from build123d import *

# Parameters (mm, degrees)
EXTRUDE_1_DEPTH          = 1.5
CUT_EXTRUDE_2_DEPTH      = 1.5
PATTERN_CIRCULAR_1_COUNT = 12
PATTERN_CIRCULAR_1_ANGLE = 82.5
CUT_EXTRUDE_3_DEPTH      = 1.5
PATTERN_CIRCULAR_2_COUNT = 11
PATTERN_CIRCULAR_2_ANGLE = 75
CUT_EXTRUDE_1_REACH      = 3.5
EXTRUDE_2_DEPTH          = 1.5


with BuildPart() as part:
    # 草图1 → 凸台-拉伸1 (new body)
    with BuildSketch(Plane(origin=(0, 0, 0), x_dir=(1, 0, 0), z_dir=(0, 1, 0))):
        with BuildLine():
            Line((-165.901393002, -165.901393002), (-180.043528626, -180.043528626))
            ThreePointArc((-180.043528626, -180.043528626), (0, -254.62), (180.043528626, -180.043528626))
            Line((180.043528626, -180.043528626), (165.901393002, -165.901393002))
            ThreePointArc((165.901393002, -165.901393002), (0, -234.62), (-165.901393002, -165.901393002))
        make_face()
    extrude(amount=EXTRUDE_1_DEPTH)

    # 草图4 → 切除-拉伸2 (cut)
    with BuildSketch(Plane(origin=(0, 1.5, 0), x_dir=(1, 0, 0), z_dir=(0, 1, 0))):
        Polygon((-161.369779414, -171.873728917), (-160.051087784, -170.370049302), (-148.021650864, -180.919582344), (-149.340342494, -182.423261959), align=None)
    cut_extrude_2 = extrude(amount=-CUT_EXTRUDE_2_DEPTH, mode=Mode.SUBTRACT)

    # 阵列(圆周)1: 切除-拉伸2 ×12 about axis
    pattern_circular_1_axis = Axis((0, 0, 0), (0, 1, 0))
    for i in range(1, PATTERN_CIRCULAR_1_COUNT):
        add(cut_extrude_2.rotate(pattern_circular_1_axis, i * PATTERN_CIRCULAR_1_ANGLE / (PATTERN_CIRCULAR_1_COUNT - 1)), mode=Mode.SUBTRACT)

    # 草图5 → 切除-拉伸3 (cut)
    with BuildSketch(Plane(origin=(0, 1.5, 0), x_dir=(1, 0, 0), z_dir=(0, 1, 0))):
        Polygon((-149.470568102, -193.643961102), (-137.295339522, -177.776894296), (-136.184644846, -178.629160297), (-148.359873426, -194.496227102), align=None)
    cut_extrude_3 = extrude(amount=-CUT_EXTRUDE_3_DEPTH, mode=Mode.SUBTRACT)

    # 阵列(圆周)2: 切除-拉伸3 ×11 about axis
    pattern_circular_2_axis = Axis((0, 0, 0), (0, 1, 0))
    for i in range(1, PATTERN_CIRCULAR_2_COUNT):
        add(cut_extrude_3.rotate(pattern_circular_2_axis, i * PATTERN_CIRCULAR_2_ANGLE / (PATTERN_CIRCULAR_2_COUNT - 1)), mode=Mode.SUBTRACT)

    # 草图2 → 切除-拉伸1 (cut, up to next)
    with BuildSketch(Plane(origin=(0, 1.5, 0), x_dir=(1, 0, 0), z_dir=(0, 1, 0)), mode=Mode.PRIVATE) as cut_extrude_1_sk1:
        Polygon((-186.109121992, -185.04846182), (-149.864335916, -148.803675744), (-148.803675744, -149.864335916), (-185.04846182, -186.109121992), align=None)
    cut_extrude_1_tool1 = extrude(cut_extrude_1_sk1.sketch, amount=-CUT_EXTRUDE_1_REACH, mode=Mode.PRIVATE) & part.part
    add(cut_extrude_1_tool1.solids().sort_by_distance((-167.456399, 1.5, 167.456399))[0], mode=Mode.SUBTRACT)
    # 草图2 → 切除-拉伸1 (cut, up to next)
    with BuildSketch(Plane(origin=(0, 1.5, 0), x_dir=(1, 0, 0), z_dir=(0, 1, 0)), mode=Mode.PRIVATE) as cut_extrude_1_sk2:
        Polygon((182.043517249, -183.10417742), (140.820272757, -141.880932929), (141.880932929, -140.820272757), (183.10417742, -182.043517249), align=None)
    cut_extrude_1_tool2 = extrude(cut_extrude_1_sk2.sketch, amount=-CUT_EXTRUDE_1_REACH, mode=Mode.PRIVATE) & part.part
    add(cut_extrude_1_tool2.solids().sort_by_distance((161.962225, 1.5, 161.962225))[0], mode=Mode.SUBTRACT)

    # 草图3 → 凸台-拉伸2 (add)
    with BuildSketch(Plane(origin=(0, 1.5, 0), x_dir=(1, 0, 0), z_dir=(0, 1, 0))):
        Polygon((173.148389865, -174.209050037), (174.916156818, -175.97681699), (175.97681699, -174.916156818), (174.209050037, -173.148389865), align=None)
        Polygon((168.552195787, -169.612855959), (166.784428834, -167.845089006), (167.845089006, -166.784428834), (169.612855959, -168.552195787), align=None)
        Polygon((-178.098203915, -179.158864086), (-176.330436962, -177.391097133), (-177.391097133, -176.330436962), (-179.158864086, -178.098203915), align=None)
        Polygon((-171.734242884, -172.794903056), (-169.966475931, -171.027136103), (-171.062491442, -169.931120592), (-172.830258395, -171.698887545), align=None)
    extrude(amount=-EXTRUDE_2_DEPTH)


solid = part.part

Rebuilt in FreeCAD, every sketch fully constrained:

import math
import FreeCAD as App
import Part
import Sketcher

V = App.Vector
Q = App.Units.Quantity

doc = App.newDocument("Part")
body = doc.addObject("PartDesign::Body", "Body")

sketch1 = body.newObject("Sketcher::SketchObject", "Sketch")
sketch1.AttachmentSupport = (doc.getObject("XZ_Plane"), [""])
sketch1.MapMode = "FlatFace"
sketch1.addGeometry([
    Part.LineSegment(V(-166, 166, 0), V(-180, 180, 0)),
    Part.ArcOfCircle(Part.Circle(V(0, 0, 0), V(0, 0, 1), 255), math.radians(45), math.radians(135)),
    Part.LineSegment(V(180, 180, 0), V(166, 166, 0)),
    Part.ArcOfCircle(Part.Circle(V(0, 0, 0), V(0, 0, 1), 235), math.radians(45), math.radians(135)),
], False)
sketch1.addConstraint([
    Sketcher.Constraint("Coincident", 0, 2, 1, 2),
    Sketcher.Constraint("Coincident", 1, 1, 2, 1),
    Sketcher.Constraint("Coincident", 2, 2, 3, 1),
    Sketcher.Constraint("Coincident", 3, 2, 0, 1),
    Sketcher.Constraint("Coincident", 1, 3, -1, 1),
    Sketcher.Constraint("Coincident", 3, 3, -1, 1),
    Sketcher.Constraint("Perpendicular", 0, 2),
    Sketcher.Constraint("Horizontal", 0, 2, 1, 1),
    Sketcher.Constraint("Horizontal", 2, 2, 3, 2),
    Sketcher.Constraint("Radius", 1, Q("254.62 mm")),
    Sketcher.Constraint("Radius", 3, Q("234.62 mm")),
    Sketcher.Constraint("DistanceX", 0, 2, -1, 1, Q("180.043529 mm")),
])
pad1 = body.newObject("PartDesign::Pad", "Pad")
pad1.Profile = sketch1
pad1.Length = 1.5
pad1.Reversed = True

sketch2 = body.newObject("Sketcher::SketchObject", "Sketch001")
sketch2.AttachmentSupport = (doc.getObject("XZ_Plane"), [""])
sketch2.MapMode = "FlatFace"
sketch2.AttachmentOffset = App.Placement(V(0, 0, -1.5), App.Rotation())
sketch2.addGeometry([
    Part.LineSegment(V(-160.1, 170.4, 0), V(-161.4, 171.9, 0)),
    Part.LineSegment(V(-161.4, 171.9, 0), V(-149.3, 182.4, 0)),
    Part.LineSegment(V(-149.3, 182.4, 0), V(-148, 180.9, 0)),
    Part.LineSegment(V(-148, 180.9, 0), V(-160.1, 170.4, 0)),
], False)
sketch2.addConstraint([
    Sketcher.Constraint("Coincident", 0, 2, 1, 1),
    Sketcher.Constraint("Coincident", 1, 2, 2, 1),
    Sketcher.Constraint("Coincident", 2, 2, 3, 1),
    Sketcher.Constraint("Coincident", 3, 2, 0, 1),
    Sketcher.Constraint("Perpendicular", 0, 1),
    Sketcher.Constraint("Perpendicular", 1, 2),
    Sketcher.Constraint("Perpendicular", 2, 3),
    Sketcher.Constraint("Distance", 0, Q("2 mm")),
    Sketcher.Constraint("Distance", 1, Q("16 mm")),
    Sketcher.Constraint("Angle", 0, Q("131.25 deg")),
    Sketcher.Constraint("DistanceX", 0, 2, -1, 1, Q("161.369779 mm")),
    Sketcher.Constraint("DistanceY", -1, 1, 0, 2, Q("171.873729 mm")),
])
pocket1 = body.newObject("PartDesign::Pocket", "Pocket")
pocket1.Profile = sketch2
pocket1.Length = 1.5
pocket1.Reversed = True
doc.recompute()

polarpattern = body.newObject("PartDesign::PolarPattern", "PolarPattern")
polarpattern.Originals = [pocket1]
polarpattern.Axis = (doc.getObject("Y_Axis"), [""])
polarpattern.Angle = 82.5
polarpattern.Occurrences = 12
body.Tip = polarpattern

sketch3 = body.newObject("Sketcher::SketchObject", "Sketch002")
sketch3.AttachmentSupport = (doc.getObject("XZ_Plane"), [""])
sketch3.MapMode = "FlatFace"
sketch3.AttachmentOffset = App.Placement(V(0, 0, -1.5), App.Rotation())
sketch3.addGeometry([
    Part.LineSegment(V(-137.3, 177.8, 0), V(-149.5, 193.6, 0)),
    Part.LineSegment(V(-149.5, 193.6, 0), V(-148.4, 194.5, 0)),
    Part.LineSegment(V(-148.4, 194.5, 0), V(-136.2, 178.6, 0)),
    Part.LineSegment(V(-136.2, 178.6, 0), V(-137.3, 177.8, 0)),
], False)
sketch3.addConstraint([
    Sketcher.Constraint("Coincident", 0, 2, 1, 1),
    Sketcher.Constraint("Coincident", 1, 2, 2, 1),
    Sketcher.Constraint("Coincident", 2, 2, 3, 1),
    Sketcher.Constraint("Coincident", 3, 2, 0, 1),
    Sketcher.Constraint("Perpendicular", 0, 1),
    Sketcher.Constraint("Perpendicular", 1, 2),
    Sketcher.Constraint("Perpendicular", 2, 3),
    Sketcher.Constraint("Distance", 0, Q("20 mm")),
    Sketcher.Constraint("Angle", 0, Q("127.5 deg")),
    Sketcher.Constraint("Distance", 1, Q("1.4 mm")),
    Sketcher.Constraint("DistanceX", 0, 2, -1, 1, Q("149.470568 mm")),
    Sketcher.Constraint("DistanceY", -1, 1, 0, 2, Q("193.643961 mm")),
])
pocket2 = body.newObject("PartDesign::Pocket", "Pocket001")
pocket2.Profile = sketch3
pocket2.Length = 1.5
pocket2.Reversed = True
doc.recompute()

polarpattern2 = body.newObject("PartDesign::PolarPattern", "PolarPattern001")
polarpattern2.Originals = [pocket2]
polarpattern2.Axis = (doc.getObject("Y_Axis"), [""])
polarpattern2.Angle = 75
polarpattern2.Occurrences = 11
body.Tip = polarpattern2

sketch4 = body.newObject("Sketcher::SketchObject", "Sketch003")
sketch4.AttachmentSupport = (doc.getObject("XZ_Plane"), [""])
sketch4.MapMode = "FlatFace"
sketch4.AttachmentOffset = App.Placement(V(0, 0, -1.5), App.Rotation())
sketch4.addGeometry([
    Part.LineSegment(V(-149.9, 148.8, 0), V(-186.1, 185, 0)),
    Part.LineSegment(V(-186.1, 185, 0), V(-185, 186.1, 0)),
    Part.LineSegment(V(-185, 186.1, 0), V(-148.8, 149.9, 0)),
    Part.LineSegment(V(-148.8, 149.9, 0), V(-149.9, 148.8, 0)),
], False)
sketch4.addConstraint([
    Sketcher.Constraint("Coincident", 0, 2, 1, 1),
    Sketcher.Constraint("Coincident", 1, 2, 2, 1),
    Sketcher.Constraint("Coincident", 2, 2, 3, 1),
    Sketcher.Constraint("Coincident", 3, 2, 0, 1),
    Sketcher.Constraint("Perpendicular", 0, 1),
    Sketcher.Constraint("Perpendicular", 1, 2),
    Sketcher.Constraint("Perpendicular", 2, 3),
    Sketcher.Constraint("Angle", 0, Q("135 deg")),
    Sketcher.Constraint("Distance", 1, Q("1.5 mm")),
    Sketcher.Constraint("Distance", 0, Q("51.257868 mm")),
    Sketcher.Constraint("DistanceX", 0, 2, -1, 1, Q("186.109122 mm")),
    Sketcher.Constraint("DistanceY", -1, 1, 0, 2, Q("185.048462 mm")),
])
pocket3 = body.newObject("PartDesign::Pocket", "Pocket002")
pocket3.Profile = sketch4
pocket3.Type = "UpToFirst"
pocket3.Reversed = True

sketch5 = body.newObject("Sketcher::SketchObject", "Sketch004")
sketch5.AttachmentSupport = (doc.getObject("XZ_Plane"), [""])
sketch5.MapMode = "FlatFace"
sketch5.AttachmentOffset = App.Placement(V(0, 0, -1.5), App.Rotation())
sketch5.addGeometry([
    Part.LineSegment(V(140.8, 141.9, 0), V(182, 183.1, 0)),
    Part.LineSegment(V(182, 183.1, 0), V(183.1, 182, 0)),
    Part.LineSegment(V(183.1, 182, 0), V(141.9, 140.8, 0)),
    Part.LineSegment(V(141.9, 140.8, 0), V(140.8, 141.9, 0)),
], False)
sketch5.addConstraint([
    Sketcher.Constraint("Coincident", 0, 2, 1, 1),
    Sketcher.Constraint("Coincident", 1, 2, 2, 1),
    Sketcher.Constraint("Coincident", 2, 2, 3, 1),
    Sketcher.Constraint("Coincident", 3, 2, 0, 1),
    Sketcher.Constraint("Perpendicular", 0, 1),
    Sketcher.Constraint("Perpendicular", 1, 2),
    Sketcher.Constraint("Perpendicular", 2, 3),
    Sketcher.Constraint("Angle", 0, Q("45 deg")),
    Sketcher.Constraint("Distance", 1, Q("1.5 mm")),
    Sketcher.Constraint("Distance", 0, Q("58.298471 mm")),
    Sketcher.Constraint("DistanceX", -1, 1, 0, 2, Q("182.043517 mm")),
    Sketcher.Constraint("DistanceY", -1, 1, 0, 2, Q("183.104177 mm")),
])
pocket4 = body.newObject("PartDesign::Pocket", "Pocket003")
pocket4.Profile = sketch5
pocket4.Length = 1.5
pocket4.Reversed = True

sketch6 = body.newObject("Sketcher::SketchObject", "Sketch005")
sketch6.AttachmentSupport = (doc.getObject("XZ_Plane"), [""])
sketch6.MapMode = "FlatFace"
sketch6.AttachmentOffset = App.Placement(V(0, 0, -1.5), App.Rotation())
sketch6.addGeometry([
    Part.LineSegment(V(173.1, 174.2, 0), V(174.9, 176, 0)),
    Part.LineSegment(V(174.9, 176, 0), V(176, 174.9, 0)),
    Part.LineSegment(V(176, 174.9, 0), V(174.2, 173.1, 0)),
    Part.LineSegment(V(174.2, 173.1, 0), V(173.1, 174.2, 0)),
    Part.LineSegment(V(166.8, 167.8, 0), V(168.6, 169.6, 0)),
    Part.LineSegment(V(168.6, 169.6, 0), V(169.6, 168.6, 0)),
    Part.LineSegment(V(169.6, 168.6, 0), V(167.8, 166.8, 0)),
    Part.LineSegment(V(167.8, 166.8, 0), V(166.8, 167.8, 0)),
    Part.LineSegment(V(-178.1, 179.2, 0), V(-176.3, 177.4, 0)),
    Part.LineSegment(V(-176.3, 177.4, 0), V(-177.4, 176.3, 0)),
    Part.LineSegment(V(-177.4, 176.3, 0), V(-179.2, 178.1, 0)),
    Part.LineSegment(V(-179.2, 178.1, 0), V(-178.1, 179.2, 0)),
    Part.LineSegment(V(-171.7, 172.8, 0), V(-170, 171, 0)),
    Part.LineSegment(V(-170, 171, 0), V(-171.1, 169.9, 0)),
    Part.LineSegment(V(-171.1, 169.9, 0), V(-172.8, 171.7, 0)),
    Part.LineSegment(V(-172.8, 171.7, 0), V(-171.7, 172.8, 0)),
], False)
sketch6.addConstraint([
    Sketcher.Constraint("Coincident", 0, 2, 1, 1),
    Sketcher.Constraint("Coincident", 1, 2, 2, 1),
    Sketcher.Constraint("Coincident", 2, 2, 3, 1),
    Sketcher.Constraint("Coincident", 3, 2, 0, 1),
    Sketcher.Constraint("Coincident", 4, 2, 5, 1),
    Sketcher.Constraint("Coincident", 5, 2, 6, 1),
    Sketcher.Constraint("Coincident", 6, 2, 7, 1),
    Sketcher.Constraint("Coincident", 7, 2, 4, 1),
    Sketcher.Constraint("Coincident", 8, 2, 9, 1),
    Sketcher.Constraint("Coincident", 9, 2, 10, 1),
    Sketcher.Constraint("Coincident", 10, 2, 11, 1),
    Sketcher.Constraint("Coincident", 11, 2, 8, 1),
    Sketcher.Constraint("Coincident", 12, 2, 13, 1),
    Sketcher.Constraint("Coincident", 13, 2, 14, 1),
    Sketcher.Constraint("Coincident", 14, 2, 15, 1),
    Sketcher.Constraint("Coincident", 15, 2, 12, 1),
    Sketcher.Constraint("Perpendicular", 0, 1),
    Sketcher.Constraint("Perpendicular", 1, 2),
    Sketcher.Constraint("Perpendicular", 2, 3),
    Sketcher.Constraint("Perpendicular", 3, 4),
    Sketcher.Constraint("Perpendicular", 4, 5),
    Sketcher.Constraint("Perpendicular", 5, 6),
    Sketcher.Constraint("Perpendicular", 6, 7),
    Sketcher.Constraint("Parallel", 7, 8),
    Sketcher.Constraint("Perpendicular", 8, 9),
    Sketcher.Constraint("Perpendicular", 9, 10),
    Sketcher.Constraint("Perpendicular", 10, 11),
    Sketcher.Constraint("Perpendicular", 11, 12),
    Sketcher.Constraint("Perpendicular", 12, 13),
    Sketcher.Constraint("Perpendicular", 13, 14),
    Sketcher.Constraint("Perpendicular", 14, 15),
    Sketcher.Constraint("Equal", 2, 4),
    Sketcher.Constraint("Equal", 3, 5),
    Sketcher.Constraint("Equal", 6, 8),
    Sketcher.Constraint("Equal", 7, 9),
    Sketcher.Constraint("Equal", 10, 12),
    Sketcher.Constraint("Angle", 0, Q("45 deg")),
    Sketcher.Constraint("Distance", 0, Q("2.5 mm")),
    Sketcher.Constraint("Distance", 1, Q("1.5 mm")),
    Sketcher.Constraint("Distance", 13, Q("1.55 mm")),
    Sketcher.Constraint("DistanceY", 4, 2, 1, 2, Q("5.303301 mm")),
    Sketcher.Constraint("DistanceX", 5, 2, 0, 2, Q("5.303301 mm")),
    Sketcher.Constraint("DistanceY", 5, 2, 8, 2, Q("8.838901 mm")),
    Sketcher.Constraint("DistanceY", 12, 2, 9, 2, Q("5.303301 mm")),
    Sketcher.Constraint("DistanceX", -1, 1, 2, 2, Q("174.20905 mm")),
    Sketcher.Constraint("DistanceY", -1, 1, 2, 2, Q("173.14839 mm")),
    Sketcher.Constraint("DistanceX", 13, 2, -1, 1, Q("171.062491 mm")),
    Sketcher.Constraint("DistanceX", 10, 2, 4, 2, Q("347.71106 mm")),
])
pad2 = body.newObject("PartDesign::Pad", "Pad001")
pad2.Profile = sketch6
pad2.Length = 1.5

doc.recompute()
